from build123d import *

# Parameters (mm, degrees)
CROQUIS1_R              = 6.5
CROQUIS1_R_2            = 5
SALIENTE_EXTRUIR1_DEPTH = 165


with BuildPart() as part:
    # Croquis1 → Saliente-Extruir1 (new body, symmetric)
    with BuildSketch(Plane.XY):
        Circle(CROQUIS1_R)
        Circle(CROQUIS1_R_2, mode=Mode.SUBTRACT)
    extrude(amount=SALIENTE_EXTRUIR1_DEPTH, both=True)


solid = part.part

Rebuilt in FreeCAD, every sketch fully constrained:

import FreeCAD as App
import Part
import Sketcher
from FreeCAD import Vector
Q = App.Units.Quantity

doc = App.newDocument("Part")
params = doc.addObject("Spreadsheet::Sheet", "Params")
for row, (alias, value) in enumerate([
    ("sketch1_diameter", "13 mm"),
    ("sketch1_diameter2", "10 mm"),
    ("pad1_length", "330 mm"),
], start=1):
    params.set(f"A{row}", alias)
    params.set(f"B{row}", "=" + value)
    params.setAlias(f"B{row}", alias)

body = doc.addObject("PartDesign::Body", "Body")

sketch1 = body.newObject("Sketcher::SketchObject", "Sketch")
sketch1.AttachmentSupport = (doc.getObject("XY_Plane"), [""])
sketch1.MapMode = "FlatFace"
sketch1.addGeometry(Part.Circle(Vector(0, 0, 0), Vector(0, 0, 1), 6), False)
sketch1.addGeometry(Part.Circle(Vector(0, 0, 0), Vector(0, 0, 1), 5), False)
sketch1.addConstraint(Sketcher.Constraint("Coincident", 0, 3, -1, 1))
sketch1.addConstraint(Sketcher.Constraint("Coincident", 1, 3, -1, 1))
sketch1.addConstraint(Sketcher.Constraint("Diameter", 0, Q("13 mm")))
sketch1.addConstraint(Sketcher.Constraint("Diameter", 1, Q("10 mm")))
sketch1.setExpression("Constraints[2]", "Params.sketch1_diameter")
sketch1.setExpression("Constraints[3]", "Params.sketch1_diameter2")
pad1 = body.newObject("PartDesign::Pad", "Pad")
pad1.Profile = sketch1
pad1.setExpression("Length", "Params.pad1_length")
pad1.Midplane = True

doc.recompute()
